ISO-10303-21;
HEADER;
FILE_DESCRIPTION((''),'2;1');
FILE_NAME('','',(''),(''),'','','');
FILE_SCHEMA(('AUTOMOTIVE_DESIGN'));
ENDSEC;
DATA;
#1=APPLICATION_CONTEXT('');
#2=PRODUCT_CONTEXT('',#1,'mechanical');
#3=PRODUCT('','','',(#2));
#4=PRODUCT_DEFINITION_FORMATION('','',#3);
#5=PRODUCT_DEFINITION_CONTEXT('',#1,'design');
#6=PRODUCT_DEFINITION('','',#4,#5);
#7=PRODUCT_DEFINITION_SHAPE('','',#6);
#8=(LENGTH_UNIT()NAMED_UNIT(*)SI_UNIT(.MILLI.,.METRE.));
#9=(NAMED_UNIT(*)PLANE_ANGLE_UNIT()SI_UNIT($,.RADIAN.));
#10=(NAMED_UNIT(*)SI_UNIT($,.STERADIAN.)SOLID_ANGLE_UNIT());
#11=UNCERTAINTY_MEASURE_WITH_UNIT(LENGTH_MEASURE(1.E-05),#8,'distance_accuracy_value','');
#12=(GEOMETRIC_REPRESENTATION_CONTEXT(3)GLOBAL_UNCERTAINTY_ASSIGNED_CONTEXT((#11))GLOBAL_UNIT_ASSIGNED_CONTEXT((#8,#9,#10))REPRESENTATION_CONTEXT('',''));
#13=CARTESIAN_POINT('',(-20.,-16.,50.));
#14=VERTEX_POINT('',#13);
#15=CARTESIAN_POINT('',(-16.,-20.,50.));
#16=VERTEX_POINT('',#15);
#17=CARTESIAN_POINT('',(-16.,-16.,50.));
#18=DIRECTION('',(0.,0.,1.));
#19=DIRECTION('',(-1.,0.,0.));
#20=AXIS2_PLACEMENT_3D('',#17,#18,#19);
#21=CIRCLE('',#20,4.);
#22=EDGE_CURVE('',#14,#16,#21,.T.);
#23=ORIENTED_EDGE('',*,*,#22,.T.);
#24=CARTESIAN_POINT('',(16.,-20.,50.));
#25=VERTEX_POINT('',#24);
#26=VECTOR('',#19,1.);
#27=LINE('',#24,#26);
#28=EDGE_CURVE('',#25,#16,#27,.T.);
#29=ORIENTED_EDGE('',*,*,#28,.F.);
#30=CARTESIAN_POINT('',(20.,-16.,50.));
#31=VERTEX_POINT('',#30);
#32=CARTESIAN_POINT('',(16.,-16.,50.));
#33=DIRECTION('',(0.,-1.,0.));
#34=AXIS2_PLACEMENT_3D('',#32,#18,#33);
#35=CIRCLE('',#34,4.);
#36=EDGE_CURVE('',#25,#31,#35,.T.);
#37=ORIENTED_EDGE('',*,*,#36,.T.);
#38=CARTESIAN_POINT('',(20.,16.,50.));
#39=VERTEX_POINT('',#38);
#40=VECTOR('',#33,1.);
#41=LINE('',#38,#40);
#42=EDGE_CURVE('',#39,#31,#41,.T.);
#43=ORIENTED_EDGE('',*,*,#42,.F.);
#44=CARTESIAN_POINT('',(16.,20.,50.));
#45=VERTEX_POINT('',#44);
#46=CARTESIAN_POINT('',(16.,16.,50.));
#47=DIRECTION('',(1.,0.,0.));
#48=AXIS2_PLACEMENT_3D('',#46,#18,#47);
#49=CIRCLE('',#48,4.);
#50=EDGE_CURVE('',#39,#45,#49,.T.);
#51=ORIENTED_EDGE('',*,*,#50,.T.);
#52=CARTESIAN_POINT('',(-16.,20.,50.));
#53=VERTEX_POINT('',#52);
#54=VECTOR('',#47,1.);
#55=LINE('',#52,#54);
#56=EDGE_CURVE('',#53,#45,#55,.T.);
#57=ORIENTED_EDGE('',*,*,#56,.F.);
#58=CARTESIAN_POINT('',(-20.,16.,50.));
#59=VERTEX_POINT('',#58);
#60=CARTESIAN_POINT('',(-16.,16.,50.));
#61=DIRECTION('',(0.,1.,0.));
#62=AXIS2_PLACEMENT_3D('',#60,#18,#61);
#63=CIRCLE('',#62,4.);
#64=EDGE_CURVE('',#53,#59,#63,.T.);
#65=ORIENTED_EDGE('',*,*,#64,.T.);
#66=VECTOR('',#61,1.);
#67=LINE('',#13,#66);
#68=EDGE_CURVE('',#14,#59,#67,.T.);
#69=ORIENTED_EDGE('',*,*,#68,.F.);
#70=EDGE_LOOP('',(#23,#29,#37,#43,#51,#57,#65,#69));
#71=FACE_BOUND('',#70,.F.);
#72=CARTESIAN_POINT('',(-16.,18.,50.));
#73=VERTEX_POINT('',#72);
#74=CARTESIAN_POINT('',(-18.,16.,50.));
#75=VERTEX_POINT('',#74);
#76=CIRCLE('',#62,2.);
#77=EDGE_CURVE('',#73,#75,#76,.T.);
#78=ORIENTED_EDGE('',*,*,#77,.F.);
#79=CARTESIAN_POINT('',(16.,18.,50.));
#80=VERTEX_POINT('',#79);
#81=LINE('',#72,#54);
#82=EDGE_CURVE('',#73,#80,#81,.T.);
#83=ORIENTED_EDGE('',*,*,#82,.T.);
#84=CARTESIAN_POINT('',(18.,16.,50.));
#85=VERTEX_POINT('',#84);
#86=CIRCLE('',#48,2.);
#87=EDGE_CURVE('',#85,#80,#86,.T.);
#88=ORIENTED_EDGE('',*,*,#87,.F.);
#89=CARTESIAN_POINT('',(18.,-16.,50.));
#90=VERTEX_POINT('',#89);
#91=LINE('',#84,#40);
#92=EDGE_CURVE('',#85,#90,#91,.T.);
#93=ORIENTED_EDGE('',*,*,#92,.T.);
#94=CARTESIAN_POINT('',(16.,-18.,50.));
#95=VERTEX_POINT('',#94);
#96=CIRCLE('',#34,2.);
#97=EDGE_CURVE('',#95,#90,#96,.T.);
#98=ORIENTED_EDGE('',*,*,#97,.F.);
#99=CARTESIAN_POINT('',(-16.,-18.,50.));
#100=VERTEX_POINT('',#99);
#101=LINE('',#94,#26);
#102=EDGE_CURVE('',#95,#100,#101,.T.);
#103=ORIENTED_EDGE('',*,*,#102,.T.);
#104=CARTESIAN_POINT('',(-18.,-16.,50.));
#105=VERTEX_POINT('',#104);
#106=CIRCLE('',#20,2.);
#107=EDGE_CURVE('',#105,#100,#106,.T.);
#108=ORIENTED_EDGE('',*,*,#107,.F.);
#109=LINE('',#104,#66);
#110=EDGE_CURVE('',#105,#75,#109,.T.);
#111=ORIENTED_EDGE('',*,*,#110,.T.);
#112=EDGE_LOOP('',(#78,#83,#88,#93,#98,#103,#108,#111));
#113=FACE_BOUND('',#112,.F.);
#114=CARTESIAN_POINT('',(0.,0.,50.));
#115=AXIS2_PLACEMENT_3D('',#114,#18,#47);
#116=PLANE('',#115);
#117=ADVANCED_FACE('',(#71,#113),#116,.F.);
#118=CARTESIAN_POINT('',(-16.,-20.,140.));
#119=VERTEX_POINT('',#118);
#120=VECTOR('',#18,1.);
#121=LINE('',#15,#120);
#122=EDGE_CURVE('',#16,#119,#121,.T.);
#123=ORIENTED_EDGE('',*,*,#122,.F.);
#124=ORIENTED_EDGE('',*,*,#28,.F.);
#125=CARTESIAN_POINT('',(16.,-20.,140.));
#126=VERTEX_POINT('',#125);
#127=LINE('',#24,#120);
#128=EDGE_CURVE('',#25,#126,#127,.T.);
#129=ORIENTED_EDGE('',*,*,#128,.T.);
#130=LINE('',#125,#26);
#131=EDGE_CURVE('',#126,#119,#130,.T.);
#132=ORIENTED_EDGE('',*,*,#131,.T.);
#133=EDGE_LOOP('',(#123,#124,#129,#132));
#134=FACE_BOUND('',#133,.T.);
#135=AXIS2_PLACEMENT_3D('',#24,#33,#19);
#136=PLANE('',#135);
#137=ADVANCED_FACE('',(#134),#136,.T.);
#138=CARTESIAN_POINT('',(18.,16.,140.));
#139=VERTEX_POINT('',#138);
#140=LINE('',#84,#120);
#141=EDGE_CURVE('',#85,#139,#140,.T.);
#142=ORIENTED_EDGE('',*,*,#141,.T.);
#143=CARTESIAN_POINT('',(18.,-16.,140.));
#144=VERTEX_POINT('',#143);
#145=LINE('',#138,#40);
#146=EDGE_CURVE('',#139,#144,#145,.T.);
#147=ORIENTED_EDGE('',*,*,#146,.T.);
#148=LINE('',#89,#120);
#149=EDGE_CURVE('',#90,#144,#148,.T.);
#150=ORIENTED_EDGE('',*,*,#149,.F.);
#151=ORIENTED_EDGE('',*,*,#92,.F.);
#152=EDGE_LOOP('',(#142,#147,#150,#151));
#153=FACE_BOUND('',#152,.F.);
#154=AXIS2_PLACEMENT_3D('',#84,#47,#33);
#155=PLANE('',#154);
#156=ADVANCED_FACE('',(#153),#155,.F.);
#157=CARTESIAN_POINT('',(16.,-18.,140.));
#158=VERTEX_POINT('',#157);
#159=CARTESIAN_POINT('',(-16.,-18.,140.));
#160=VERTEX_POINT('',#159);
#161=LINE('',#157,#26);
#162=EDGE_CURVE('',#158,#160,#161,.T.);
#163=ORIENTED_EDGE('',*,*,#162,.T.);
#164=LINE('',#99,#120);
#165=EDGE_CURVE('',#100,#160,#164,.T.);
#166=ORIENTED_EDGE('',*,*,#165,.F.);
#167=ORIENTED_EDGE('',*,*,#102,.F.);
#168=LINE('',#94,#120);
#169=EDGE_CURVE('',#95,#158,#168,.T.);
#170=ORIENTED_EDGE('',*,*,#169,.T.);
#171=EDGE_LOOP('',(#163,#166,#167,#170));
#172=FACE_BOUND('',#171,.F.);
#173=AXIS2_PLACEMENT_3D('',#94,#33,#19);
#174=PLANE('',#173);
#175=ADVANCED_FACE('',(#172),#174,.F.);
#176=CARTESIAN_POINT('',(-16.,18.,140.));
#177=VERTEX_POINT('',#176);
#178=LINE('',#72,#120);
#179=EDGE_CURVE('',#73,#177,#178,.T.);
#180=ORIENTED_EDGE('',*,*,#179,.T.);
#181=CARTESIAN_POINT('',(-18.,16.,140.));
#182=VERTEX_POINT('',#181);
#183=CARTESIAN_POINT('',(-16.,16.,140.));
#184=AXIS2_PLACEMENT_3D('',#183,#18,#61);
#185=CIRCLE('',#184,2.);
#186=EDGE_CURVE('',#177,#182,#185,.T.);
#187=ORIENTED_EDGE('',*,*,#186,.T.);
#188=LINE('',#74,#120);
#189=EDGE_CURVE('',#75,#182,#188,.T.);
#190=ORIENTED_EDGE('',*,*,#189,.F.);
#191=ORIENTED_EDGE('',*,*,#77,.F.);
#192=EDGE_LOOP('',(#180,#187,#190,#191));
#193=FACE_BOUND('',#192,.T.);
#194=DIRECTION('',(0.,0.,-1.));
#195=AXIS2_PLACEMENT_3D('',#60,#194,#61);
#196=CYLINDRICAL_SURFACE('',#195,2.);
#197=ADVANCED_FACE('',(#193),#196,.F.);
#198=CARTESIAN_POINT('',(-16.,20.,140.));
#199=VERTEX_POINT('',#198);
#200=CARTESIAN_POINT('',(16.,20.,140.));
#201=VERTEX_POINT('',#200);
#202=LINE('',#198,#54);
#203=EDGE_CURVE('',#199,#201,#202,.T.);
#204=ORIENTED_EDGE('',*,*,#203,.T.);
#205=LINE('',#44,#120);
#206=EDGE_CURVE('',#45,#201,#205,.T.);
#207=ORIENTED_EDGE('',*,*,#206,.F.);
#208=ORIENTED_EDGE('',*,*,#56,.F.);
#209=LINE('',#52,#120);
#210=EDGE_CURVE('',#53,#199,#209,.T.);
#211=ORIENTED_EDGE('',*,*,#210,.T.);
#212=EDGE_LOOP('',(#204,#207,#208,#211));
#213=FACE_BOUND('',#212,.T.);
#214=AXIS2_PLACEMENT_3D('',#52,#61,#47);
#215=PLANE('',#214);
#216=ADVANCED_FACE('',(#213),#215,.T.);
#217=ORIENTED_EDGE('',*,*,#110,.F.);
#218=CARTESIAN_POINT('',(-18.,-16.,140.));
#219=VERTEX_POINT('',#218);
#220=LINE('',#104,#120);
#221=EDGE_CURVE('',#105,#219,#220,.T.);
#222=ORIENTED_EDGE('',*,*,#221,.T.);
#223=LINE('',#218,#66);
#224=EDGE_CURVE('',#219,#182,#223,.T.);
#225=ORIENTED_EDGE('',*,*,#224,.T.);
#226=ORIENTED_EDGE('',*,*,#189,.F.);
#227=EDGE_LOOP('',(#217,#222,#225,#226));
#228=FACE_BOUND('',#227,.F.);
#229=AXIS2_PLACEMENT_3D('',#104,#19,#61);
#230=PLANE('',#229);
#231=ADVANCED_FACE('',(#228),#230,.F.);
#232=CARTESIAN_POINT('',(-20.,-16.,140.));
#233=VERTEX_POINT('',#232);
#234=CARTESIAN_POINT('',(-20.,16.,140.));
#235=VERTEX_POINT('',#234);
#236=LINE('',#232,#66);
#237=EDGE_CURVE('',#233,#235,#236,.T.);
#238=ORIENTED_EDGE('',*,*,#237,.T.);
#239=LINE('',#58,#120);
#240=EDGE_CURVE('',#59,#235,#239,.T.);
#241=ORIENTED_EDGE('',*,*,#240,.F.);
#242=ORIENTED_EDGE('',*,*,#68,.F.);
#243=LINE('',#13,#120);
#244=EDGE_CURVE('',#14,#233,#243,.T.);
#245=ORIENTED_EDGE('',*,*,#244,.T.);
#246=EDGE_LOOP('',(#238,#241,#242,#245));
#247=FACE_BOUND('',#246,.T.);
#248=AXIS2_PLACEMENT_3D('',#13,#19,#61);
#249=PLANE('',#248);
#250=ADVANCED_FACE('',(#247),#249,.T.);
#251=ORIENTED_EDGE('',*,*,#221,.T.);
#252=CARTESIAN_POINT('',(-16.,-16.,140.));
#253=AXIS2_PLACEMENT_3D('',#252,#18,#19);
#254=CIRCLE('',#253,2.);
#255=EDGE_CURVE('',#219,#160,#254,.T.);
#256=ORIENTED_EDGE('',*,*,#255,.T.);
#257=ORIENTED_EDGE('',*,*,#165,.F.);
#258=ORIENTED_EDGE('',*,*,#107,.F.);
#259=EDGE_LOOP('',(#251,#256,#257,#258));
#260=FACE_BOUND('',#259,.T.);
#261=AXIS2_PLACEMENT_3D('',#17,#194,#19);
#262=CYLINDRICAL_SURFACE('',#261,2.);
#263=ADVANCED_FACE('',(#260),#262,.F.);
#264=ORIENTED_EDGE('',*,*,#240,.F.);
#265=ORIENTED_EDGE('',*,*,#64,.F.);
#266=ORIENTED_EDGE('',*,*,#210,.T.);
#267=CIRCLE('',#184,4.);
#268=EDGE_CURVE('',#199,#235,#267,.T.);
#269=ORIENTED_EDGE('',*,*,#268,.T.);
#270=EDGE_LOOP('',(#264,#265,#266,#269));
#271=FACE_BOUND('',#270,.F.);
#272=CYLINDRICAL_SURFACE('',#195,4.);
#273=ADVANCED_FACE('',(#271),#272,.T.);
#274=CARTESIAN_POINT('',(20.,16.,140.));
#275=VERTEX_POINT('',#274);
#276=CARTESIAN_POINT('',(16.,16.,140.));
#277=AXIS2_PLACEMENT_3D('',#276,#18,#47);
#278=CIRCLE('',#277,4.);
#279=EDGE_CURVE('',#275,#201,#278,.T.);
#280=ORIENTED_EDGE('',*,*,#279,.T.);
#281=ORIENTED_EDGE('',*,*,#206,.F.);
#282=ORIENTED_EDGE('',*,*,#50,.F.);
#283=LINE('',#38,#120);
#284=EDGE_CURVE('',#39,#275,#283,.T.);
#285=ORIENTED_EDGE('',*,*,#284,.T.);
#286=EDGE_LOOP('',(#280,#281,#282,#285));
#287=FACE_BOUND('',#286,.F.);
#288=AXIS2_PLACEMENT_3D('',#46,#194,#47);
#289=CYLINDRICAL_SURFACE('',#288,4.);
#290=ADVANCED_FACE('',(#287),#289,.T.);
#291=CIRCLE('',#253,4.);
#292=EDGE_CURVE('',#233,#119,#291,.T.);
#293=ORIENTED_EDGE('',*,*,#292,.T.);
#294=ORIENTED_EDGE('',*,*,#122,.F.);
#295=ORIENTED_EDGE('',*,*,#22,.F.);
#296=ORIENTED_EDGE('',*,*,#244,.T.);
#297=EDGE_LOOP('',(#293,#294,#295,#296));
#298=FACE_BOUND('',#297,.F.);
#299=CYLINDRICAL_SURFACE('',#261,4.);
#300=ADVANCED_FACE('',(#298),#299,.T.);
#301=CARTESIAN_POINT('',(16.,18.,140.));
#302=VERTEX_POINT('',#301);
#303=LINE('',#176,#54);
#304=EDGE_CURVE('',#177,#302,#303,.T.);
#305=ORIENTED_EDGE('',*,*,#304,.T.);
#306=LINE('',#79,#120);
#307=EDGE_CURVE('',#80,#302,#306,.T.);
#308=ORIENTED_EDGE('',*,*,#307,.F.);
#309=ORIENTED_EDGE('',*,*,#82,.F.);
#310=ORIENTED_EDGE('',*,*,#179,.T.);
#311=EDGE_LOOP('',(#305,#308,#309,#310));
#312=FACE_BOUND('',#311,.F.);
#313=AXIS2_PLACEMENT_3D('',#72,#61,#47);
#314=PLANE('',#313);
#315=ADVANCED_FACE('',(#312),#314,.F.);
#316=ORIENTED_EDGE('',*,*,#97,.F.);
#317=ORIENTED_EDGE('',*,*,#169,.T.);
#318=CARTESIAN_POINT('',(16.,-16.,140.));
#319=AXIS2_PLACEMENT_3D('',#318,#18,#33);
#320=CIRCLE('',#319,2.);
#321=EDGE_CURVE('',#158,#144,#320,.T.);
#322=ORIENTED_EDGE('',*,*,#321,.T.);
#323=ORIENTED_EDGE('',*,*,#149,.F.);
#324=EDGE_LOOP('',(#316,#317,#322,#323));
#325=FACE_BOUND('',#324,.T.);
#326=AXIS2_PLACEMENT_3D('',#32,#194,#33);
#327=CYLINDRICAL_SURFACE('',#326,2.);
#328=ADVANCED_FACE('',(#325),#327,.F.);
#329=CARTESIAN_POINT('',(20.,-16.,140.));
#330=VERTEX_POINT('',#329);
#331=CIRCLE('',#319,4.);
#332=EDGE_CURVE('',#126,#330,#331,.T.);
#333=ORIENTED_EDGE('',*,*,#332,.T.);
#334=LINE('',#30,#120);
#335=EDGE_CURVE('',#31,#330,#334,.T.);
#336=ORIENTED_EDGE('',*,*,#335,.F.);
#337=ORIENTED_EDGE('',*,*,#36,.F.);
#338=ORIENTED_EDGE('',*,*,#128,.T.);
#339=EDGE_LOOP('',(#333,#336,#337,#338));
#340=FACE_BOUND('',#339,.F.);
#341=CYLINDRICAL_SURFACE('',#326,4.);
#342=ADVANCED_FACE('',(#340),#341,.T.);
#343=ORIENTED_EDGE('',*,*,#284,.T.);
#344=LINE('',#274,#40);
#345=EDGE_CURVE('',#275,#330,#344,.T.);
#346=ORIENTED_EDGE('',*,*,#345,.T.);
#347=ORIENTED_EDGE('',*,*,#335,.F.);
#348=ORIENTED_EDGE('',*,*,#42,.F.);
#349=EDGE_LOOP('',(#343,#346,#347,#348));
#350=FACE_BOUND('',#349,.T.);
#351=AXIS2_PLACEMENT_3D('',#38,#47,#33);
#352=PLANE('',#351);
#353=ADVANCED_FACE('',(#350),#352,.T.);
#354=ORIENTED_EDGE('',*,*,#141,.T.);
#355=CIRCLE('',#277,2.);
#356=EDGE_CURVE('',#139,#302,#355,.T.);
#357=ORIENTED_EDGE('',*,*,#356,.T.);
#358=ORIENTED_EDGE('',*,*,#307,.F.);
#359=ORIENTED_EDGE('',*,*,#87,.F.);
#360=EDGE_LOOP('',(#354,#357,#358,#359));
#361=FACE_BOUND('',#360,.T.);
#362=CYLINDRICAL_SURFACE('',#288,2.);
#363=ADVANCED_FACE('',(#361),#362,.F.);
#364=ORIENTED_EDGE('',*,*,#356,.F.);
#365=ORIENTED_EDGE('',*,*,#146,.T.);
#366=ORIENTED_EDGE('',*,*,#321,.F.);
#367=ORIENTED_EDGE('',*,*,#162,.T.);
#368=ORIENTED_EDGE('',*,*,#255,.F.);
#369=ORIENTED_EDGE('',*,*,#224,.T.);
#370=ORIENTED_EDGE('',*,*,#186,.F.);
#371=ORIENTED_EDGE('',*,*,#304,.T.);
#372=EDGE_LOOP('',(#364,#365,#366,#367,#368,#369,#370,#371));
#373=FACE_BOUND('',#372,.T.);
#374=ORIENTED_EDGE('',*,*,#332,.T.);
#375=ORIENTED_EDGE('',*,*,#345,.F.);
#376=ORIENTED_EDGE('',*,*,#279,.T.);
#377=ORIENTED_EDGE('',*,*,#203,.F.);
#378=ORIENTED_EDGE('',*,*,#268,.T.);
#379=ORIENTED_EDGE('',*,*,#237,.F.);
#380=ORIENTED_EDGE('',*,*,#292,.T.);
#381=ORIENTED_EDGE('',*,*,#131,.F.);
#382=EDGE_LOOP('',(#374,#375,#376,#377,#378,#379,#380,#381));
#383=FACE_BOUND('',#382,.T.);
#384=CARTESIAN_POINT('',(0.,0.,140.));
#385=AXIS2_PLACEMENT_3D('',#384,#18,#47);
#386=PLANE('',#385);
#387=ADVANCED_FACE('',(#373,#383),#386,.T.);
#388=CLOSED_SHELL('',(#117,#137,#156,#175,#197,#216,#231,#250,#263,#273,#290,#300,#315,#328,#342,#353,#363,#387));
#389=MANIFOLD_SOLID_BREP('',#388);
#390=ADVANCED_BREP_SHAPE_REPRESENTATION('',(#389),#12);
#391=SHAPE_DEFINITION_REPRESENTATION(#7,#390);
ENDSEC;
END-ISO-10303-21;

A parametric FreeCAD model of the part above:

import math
import FreeCAD as App
import Part
import Sketcher

V = App.Vector
Q = App.Units.Quantity

doc = App.newDocument("Part")
params = doc.addObject("Spreadsheet::Sheet", "Params")
for row, (alias, value) in enumerate([
    ("sketch1_radius", "4 mm"),
    ("sketch1_radius2", "2 mm"),
    ("pad1_length", "90 mm"),
], start=1):
    params.set(f"A{row}", alias)
    params.set(f"B{row}", "=" + value)
    params.setAlias(f"B{row}", alias)

body = doc.addObject("PartDesign::Body", "Body")

# Sketch on XY plane
sketch1 = body.newObject("Sketcher::SketchObject", "Sketch")
sketch1.AttachmentSupport = (doc.getObject("XY_Plane"), [""])
sketch1.MapMode = "FlatFace"
sketch1.AttachmentOffset = App.Placement(V(0, 0, 50), App.Rotation())
sketch1.addGeometry([
    Part.LineSegment(V(-20, 16, 0), V(-20, -16, 0)),  # 0
    Part.ArcOfCircle(Part.Circle(V(-16, -16, 0), V(0, 0, 1), 4), math.radians(180), math.radians(270)),  # 1
    Part.LineSegment(V(-16, -20, 0), V(16, -20, 0)),  # 2
    Part.ArcOfCircle(Part.Circle(V(16, -16, 0), V(0, 0, 1), 4), math.radians(-90), math.radians(0)),  # 3
    Part.LineSegment(V(20, -16, 0), V(20, 16, 0)),  # 4
    Part.ArcOfCircle(Part.Circle(V(16, 16, 0), V(0, 0, 1), 4), math.radians(0), math.radians(90)),  # 5
    Part.LineSegment(V(16, 20, 0), V(-16, 20, 0)),  # 6
    Part.ArcOfCircle(Part.Circle(V(-16, 16, 0), V(0, 0, 1), 4), math.radians(90), math.radians(180)),  # 7
    Part.ArcOfCircle(Part.Circle(V(-16, 16, 0), V(0, 0, 1), 2), math.radians(90), math.radians(180)),  # 8
    Part.LineSegment(V(-16, 18, 0), V(16, 18, 0)),  # 9
    Part.ArcOfCircle(Part.Circle(V(16, 16, 0), V(0, 0, 1), 2), math.radians(0), math.radians(90)),  # 10
    Part.LineSegment(V(18, 16, 0), V(18, -16, 0)),  # 11
    Part.ArcOfCircle(Part.Circle(V(16, -16, 0), V(0, 0, 1), 2), math.radians(-90), math.radians(0)),  # 12
    Part.LineSegment(V(16, -18, 0), V(-16, -18, 0)),  # 13
    Part.ArcOfCircle(Part.Circle(V(-16, -16, 0), V(0, 0, 1), 2), math.radians(180), math.radians(270)),  # 14
    Part.LineSegment(V(-18, -16, 0), V(-18, 16, 0)),  # 15
], False)
sketch1.addConstraint([
    Sketcher.Constraint("Tangent", 0, 2, 1, 1),
    Sketcher.Constraint("Tangent", 1, 2, 2, 1),
    Sketcher.Constraint("Tangent", 2, 2, 3, 1),
    Sketcher.Constraint("Tangent", 3, 2, 4, 1),
    Sketcher.Constraint("Tangent", 4, 2, 5, 1),
    Sketcher.Constraint("Tangent", 5, 2, 6, 1),
    Sketcher.Constraint("Tangent", 6, 2, 7, 1),
    Sketcher.Constraint("Tangent", 7, 2, 0, 1),
    Sketcher.Constraint("Tangent", 8, 1, 9, 1),
    Sketcher.Constraint("Tangent", 9, 2, 10, 2),
    Sketcher.Constraint("Tangent", 10, 1, 11, 1),
    Sketcher.Constraint("Tangent", 11, 2, 12, 2),
    Sketcher.Constraint("Tangent", 12, 1, 13, 1),
    Sketcher.Constraint("Tangent", 13, 2, 14, 2),
    Sketcher.Constraint("Tangent", 14, 1, 15, 1),
    Sketcher.Constraint("Tangent", 15, 2, 8, 2),
    Sketcher.Constraint("Vertical", 0),
    Sketcher.Constraint("Horizontal", 2),
    Sketcher.Constraint("Vertical", 4),
    Sketcher.Constraint("Horizontal", 6),
    Sketcher.Constraint("Horizontal", 9),
    Sketcher.Constraint("Vertical", 11),
    Sketcher.Constraint("Horizontal", 13),
    Sketcher.Constraint("Vertical", 15),
    Sketcher.Constraint("Coincident", 8, 3, 7, 3),
    Sketcher.Constraint("Coincident", 10, 3, 5, 3),
    Sketcher.Constraint("Coincident", 12, 3, 3, 3),
    Sketcher.Constraint("Equal", 1, 3),
    Sketcher.Constraint("Equal", 3, 5),
    Sketcher.Constraint("Equal", 5, 7),
    Sketcher.Constraint("Equal", 12, 14),
    Sketcher.Constraint("Symmetric", 1, 3, 5, 3, -1, 1),
    Sketcher.Constraint("Equal", 13, 0),
    Sketcher.Constraint("Radius", 1, Q("4 mm")),
    Sketcher.Constraint("Radius", 8, Q("2 mm")),
    Sketcher.Constraint("DistanceX", 0, 2, -1, 1, Q("20 mm")),
])
sketch1.setExpression("Constraints[33]", "Params.sketch1_radius")
sketch1.setExpression("Constraints[34]", "Params.sketch1_radius2")
pad1 = body.newObject("PartDesign::Pad", "Pad")
pad1.Profile = sketch1
pad1.setExpression("Length", "Params.pad1_length")

doc.recompute()
